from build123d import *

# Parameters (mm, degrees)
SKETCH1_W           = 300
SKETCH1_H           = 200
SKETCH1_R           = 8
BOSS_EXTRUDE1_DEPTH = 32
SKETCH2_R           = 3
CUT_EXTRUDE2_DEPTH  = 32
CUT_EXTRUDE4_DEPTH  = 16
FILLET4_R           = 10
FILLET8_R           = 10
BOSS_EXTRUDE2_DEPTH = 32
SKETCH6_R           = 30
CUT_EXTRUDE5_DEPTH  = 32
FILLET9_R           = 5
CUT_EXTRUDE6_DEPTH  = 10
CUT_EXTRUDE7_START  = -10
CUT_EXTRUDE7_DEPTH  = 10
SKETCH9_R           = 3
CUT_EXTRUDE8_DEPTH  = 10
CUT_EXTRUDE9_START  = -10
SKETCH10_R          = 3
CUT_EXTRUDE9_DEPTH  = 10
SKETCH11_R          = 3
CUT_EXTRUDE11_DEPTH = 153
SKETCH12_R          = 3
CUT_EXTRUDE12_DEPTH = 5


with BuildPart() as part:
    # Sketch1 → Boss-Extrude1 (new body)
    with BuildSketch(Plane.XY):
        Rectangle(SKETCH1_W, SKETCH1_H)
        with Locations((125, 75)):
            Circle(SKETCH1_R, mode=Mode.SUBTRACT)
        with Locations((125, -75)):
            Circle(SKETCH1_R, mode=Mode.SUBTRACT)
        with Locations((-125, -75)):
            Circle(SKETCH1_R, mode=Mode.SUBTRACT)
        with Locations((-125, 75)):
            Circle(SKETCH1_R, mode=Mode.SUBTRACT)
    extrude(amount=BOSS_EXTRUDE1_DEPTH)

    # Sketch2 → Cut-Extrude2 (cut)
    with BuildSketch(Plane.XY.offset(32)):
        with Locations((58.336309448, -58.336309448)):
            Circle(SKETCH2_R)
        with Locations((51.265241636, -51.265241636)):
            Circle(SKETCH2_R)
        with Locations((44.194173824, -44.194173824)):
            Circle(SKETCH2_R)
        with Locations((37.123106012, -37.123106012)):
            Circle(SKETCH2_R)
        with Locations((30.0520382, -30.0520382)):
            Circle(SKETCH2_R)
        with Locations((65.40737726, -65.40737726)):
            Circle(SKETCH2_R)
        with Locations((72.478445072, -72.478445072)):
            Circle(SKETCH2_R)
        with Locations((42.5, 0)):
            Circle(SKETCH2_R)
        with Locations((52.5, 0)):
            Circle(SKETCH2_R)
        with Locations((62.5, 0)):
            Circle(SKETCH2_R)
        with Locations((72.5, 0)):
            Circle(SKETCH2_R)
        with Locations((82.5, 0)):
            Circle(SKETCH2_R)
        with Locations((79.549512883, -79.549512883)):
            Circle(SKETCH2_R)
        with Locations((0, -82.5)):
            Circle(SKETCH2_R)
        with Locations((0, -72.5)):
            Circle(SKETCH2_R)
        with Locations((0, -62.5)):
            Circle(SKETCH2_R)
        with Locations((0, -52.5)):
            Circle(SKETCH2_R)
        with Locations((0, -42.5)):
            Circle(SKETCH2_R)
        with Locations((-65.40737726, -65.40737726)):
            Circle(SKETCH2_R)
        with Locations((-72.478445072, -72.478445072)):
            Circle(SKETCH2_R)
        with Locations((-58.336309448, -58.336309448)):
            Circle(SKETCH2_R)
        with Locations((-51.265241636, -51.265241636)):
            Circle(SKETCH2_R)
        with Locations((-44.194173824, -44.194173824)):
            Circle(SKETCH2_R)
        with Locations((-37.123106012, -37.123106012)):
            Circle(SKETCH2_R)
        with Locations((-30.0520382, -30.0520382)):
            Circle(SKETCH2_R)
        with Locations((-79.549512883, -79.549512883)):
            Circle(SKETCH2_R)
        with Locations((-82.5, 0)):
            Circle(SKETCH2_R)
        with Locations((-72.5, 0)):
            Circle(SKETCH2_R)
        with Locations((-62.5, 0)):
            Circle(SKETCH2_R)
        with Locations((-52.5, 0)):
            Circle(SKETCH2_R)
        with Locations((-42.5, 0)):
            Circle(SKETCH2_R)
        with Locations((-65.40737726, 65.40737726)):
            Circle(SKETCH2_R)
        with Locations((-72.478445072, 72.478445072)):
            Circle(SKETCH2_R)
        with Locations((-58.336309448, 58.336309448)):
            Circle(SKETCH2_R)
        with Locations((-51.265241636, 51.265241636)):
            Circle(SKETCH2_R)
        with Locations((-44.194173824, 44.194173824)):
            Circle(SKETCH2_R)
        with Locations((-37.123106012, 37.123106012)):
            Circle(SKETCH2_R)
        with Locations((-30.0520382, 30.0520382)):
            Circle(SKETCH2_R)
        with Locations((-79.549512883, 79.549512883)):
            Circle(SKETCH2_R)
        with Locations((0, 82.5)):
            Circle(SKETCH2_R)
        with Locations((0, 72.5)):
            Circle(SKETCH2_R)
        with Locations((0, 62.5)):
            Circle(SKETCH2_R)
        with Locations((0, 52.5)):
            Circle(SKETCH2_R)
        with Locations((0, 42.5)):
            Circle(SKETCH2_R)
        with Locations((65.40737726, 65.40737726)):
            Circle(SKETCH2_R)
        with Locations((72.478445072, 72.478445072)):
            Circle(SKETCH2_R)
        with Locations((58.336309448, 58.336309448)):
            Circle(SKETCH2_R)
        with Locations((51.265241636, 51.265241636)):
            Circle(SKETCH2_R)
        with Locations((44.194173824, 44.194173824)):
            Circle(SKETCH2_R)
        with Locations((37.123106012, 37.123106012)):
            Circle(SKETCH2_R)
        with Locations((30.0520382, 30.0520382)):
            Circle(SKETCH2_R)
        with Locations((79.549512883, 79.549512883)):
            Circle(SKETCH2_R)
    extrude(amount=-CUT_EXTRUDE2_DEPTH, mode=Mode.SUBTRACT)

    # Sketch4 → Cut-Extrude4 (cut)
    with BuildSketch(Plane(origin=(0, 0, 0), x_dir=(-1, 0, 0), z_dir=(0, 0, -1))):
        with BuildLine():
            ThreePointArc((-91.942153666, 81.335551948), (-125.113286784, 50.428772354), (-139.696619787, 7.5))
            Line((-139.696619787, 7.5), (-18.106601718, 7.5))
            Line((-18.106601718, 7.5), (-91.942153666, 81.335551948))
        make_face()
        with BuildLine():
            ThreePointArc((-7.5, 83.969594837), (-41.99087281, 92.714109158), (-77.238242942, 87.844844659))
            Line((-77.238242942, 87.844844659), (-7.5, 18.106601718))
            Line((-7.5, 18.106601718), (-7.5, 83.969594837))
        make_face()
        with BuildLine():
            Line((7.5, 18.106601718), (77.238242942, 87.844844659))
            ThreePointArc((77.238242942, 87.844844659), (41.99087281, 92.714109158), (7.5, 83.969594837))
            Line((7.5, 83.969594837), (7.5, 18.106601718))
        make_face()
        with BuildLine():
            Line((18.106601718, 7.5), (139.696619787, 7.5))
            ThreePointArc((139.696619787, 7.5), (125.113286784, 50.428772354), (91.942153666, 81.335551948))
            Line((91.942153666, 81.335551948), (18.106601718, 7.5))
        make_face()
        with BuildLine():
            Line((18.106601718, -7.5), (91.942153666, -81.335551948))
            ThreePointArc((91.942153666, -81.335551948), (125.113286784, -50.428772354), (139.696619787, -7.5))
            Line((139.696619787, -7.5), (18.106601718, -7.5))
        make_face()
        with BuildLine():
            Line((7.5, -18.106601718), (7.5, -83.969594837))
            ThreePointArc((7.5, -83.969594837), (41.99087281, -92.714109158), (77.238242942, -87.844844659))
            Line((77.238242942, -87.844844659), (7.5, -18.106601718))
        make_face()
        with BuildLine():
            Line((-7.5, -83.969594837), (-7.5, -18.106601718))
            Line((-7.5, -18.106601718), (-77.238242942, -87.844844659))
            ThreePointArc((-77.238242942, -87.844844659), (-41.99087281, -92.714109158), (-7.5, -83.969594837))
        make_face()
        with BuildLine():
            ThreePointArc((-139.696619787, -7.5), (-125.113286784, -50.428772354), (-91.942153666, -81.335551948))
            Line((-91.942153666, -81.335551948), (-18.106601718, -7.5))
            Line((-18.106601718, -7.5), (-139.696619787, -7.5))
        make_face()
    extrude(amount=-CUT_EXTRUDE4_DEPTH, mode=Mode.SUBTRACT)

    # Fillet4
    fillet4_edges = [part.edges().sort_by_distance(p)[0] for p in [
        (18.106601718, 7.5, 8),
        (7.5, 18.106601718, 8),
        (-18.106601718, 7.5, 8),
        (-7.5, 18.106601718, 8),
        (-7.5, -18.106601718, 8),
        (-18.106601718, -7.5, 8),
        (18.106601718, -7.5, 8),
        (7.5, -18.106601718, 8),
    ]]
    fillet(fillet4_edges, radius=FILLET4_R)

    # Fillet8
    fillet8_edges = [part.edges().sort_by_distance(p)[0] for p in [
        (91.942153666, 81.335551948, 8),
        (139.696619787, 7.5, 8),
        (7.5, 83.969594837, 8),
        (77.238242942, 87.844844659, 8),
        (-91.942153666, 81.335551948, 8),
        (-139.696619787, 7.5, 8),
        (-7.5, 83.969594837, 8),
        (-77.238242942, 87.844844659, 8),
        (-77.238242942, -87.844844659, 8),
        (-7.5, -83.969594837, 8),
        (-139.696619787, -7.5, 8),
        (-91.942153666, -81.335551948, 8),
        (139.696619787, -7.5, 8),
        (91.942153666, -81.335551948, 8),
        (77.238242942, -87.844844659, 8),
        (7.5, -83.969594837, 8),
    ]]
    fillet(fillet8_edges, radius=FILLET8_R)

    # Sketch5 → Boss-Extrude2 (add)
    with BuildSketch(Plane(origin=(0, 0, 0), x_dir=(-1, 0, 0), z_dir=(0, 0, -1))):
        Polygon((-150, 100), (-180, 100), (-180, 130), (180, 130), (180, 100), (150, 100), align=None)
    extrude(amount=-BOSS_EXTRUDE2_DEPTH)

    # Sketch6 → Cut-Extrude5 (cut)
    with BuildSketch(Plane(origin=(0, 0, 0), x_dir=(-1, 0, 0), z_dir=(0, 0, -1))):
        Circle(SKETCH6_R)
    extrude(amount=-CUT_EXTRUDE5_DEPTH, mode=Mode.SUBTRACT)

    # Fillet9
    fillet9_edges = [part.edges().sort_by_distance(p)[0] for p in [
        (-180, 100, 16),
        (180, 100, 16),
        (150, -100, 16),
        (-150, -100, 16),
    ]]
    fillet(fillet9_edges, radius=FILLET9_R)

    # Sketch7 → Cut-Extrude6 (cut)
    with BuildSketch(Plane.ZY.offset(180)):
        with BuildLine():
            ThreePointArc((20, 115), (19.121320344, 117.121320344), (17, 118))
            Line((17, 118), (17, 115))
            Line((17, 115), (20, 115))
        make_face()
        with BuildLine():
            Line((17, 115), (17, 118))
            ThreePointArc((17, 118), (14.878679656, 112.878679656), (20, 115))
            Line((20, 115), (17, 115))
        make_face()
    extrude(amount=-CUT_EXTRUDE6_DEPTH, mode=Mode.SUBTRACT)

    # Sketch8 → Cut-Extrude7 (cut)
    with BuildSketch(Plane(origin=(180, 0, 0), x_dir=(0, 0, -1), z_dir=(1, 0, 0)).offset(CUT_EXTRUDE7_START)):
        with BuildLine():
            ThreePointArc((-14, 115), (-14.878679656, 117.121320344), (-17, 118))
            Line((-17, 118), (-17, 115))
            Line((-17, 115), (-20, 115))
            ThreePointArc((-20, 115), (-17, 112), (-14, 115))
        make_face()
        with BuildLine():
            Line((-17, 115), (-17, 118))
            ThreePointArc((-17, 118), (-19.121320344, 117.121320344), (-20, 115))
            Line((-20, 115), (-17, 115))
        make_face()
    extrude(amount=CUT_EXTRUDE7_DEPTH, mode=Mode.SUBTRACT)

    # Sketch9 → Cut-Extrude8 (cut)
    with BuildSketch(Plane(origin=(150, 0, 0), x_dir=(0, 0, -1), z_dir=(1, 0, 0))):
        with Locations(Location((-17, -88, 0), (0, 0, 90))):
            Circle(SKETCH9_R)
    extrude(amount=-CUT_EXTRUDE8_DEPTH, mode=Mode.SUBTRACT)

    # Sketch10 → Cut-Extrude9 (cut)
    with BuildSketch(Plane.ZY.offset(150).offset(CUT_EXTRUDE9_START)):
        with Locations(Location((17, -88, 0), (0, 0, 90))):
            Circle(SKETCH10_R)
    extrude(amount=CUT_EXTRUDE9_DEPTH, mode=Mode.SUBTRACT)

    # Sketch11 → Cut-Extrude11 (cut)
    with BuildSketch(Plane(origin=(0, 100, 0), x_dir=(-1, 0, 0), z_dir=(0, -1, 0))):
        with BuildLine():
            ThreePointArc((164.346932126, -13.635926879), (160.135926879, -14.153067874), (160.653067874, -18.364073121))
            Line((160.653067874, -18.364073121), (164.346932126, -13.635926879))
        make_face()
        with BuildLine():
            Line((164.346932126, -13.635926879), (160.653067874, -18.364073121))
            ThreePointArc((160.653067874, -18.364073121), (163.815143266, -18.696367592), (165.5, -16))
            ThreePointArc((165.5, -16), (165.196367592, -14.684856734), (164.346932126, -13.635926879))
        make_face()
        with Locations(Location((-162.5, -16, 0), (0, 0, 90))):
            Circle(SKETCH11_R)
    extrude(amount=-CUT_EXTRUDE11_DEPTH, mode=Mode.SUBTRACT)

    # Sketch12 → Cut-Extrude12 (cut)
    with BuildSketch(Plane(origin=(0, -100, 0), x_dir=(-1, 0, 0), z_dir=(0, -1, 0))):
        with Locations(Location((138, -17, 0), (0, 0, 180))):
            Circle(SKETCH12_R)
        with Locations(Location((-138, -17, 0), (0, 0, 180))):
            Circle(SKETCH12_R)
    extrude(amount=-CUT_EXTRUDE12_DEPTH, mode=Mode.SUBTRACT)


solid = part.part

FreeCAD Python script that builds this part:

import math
import FreeCAD as App
import Part
import Sketcher
Q = App.Units.Quantity


def edges_at(feature, points):
    """Names of the edges that pass closest to the given points."""
    edges = feature.Shape.Edges
    near = lambda p: min(range(len(edges)), key=lambda i: edges[i].distToShape(Part.Vertex(*p))[0])
    return sorted({f"Edge{near(p) + 1}" for p in points})

doc = App.newDocument("Part")
body = doc.addObject("PartDesign::Body", "Body")

sketch1 = body.newObject("Sketcher::SketchObject", "Sketch")
sketch1.AttachmentSupport = (doc.getObject("XY_Plane"), [""])
sketch1.MapMode = "FlatFace"
sketch1.addGeometry(Part.LineSegment(App.Vector(-150, 100, 0), App.Vector(-150, -100, 0)), False)
sketch1.addGeometry(Part.LineSegment(App.Vector(-150, -100, 0), App.Vector(150, -100, 0)), False)
sketch1.addGeometry(Part.LineSegment(App.Vector(150, -100, 0), App.Vector(150, 100, 0)), False)
sketch1.addGeometry(Part.LineSegment(App.Vector(150, 100, 0), App.Vector(-150, 100, 0)), False)
sketch1.addGeometry(Part.Circle(App.Vector(-125, -75, 0), App.Vector(0, 0, 1), 8), False)
sketch1.addGeometry(Part.Circle(App.Vector(125, -75, 0), App.Vector(0, 0, 1), 8), False)
sketch1.addGeometry(Part.Circle(App.Vector(-125, 75, 0), App.Vector(0, 0, 1), 8), False)
sketch1.addGeometry(Part.Circle(App.Vector(125, 75, 0), App.Vector(0, 0, 1), 8), False)
sketch1.addConstraint(Sketcher.Constraint("Coincident", 0, 2, 1, 1))
sketch1.addConstraint(Sketcher.Constraint("Coincident", 1, 2, 2, 1))
sketch1.addConstraint(Sketcher.Constraint("Coincident", 2, 2, 3, 1))
sketch1.addConstraint(Sketcher.Constraint("Coincident", 3, 2, 0, 1))
sketch1.addConstraint(Sketcher.Constraint("Vertical", 0))
sketch1.addConstraint(Sketcher.Constraint("Horizontal", 1))
sketch1.addConstraint(Sketcher.Constraint("Vertical", 2))
sketch1.addConstraint(Sketcher.Constraint("Horizontal", 3))
sketch1.addConstraint(Sketcher.Constraint("Equal", 4, 5))
sketch1.addConstraint(Sketcher.Constraint("Equal", 5, 6))
sketch1.addConstraint(Sketcher.Constraint("Equal", 6, 7))
sketch1.addConstraint(Sketcher.Constraint("Symmetric", 5, 3, 6, 3, -1, 1))
sketch1.addConstraint(Sketcher.Constraint("Symmetric", 4, 3, 7, 3, -1, 1))
sketch1.addConstraint(Sketcher.Constraint("Symmetric", 0, 2, 2, 2, -1, 1))
sketch1.addConstraint(Sketcher.Constraint("Symmetric", 4, 3, 5, 3, -2))
sketch1.addConstraint(Sketcher.Constraint("Diameter", 4, Q("16 mm")))
sketch1.addConstraint(Sketcher.Constraint("DistanceX", 1, 1, 1, 2, Q("300 mm")))
sketch1.addConstraint(Sketcher.Constraint("DistanceY", 0, 2, 0, 1, Q("200 mm")))
sketch1.addConstraint(Sketcher.Constraint("DistanceX", 4, 3, -1, 1, Q("125 mm")))
sketch1.addConstraint(Sketcher.Constraint("DistanceY", 4, 3, -1, 1, Q("75 mm")))
pad1 = body.newObject("PartDesign::Pad", "Pad")
pad1.Profile = sketch1
pad1.Length = 32

sketch2 = body.newObject("Sketcher::SketchObject", "Sketch001")
sketch2.AttachmentSupport = (doc.getObject("XY_Plane"), [""])
sketch2.MapMode = "FlatFace"
sketch2.AttachmentOffset = App.Placement(App.Vector(0, 0, 32), App.Rotation())
sketch2.addGeometry(Part.Circle(App.Vector(58.336309, -58.336309, 0), App.Vector(0, 0, 1), 3), False)
sketch2.addGeometry(Part.Circle(App.Vector(51.265242, -51.265242, 0), App.Vector(0, 0, 1), 3), False)
sketch2.addGeometry(Part.Circle(App.Vector(44.194174, -44.194174, 0), App.Vector(0, 0, 1), 3), False)
sketch2.addGeometry(Part.Circle(App.Vector(37.123106, -37.123106, 0), App.Vector(0, 0, 1), 3), False)
sketch2.addGeometry(Part.Circle(App.Vector(30.052038, -30.052038, 0), App.Vector(0, 0, 1), 3), False)
sketch2.addGeometry(Part.Circle(App.Vector(65.407377, -65.407377, 0), App.Vector(0, 0, 1), 3), False)
sketch2.addGeometry(Part.Circle(App.Vector(72.478445, -72.478445, 0), App.Vector(0, 0, 1), 3), False)
sketch2.addGeometry(Part.Circle(App.Vector(42.5, 0, 0), App.Vector(0, 0, 1), 3), False)
sketch2.addGeometry(Part.Circle(App.Vector(52.5, 0, 0), App.Vector(0, 0, 1), 3), False)
sketch2.addGeometry(Part.Circle(App.Vector(62.5, 0, 0), App.Vector(0, 0, 1), 3), False)
sketch2.addGeometry(Part.Circle(App.Vector(72.5, 0, 0), App.Vector(0, 0, 1), 3), False)
sketch2.addGeometry(Part.Circle(App.Vector(82.5, 0, 0), App.Vector(0, 0, 1), 3), False)
sketch2.addGeometry(Part.Circle(App.Vector(79.549513, -79.549513, 0), App.Vector(0, 0, 1), 3), False)
sketch2.addGeometry(Part.Circle(App.Vector(0, -82.5, 0), App.Vector(0, 0, 1), 3), False)
sketch2.addGeometry(Part.Circle(App.Vector(0, -72.5, 0), App.Vector(0, 0, 1), 3), False)
sketch2.addGeometry(Part.Circle(App.Vector(0, -62.5, 0), App.Vector(0, 0, 1), 3), False)
sketch2.addGeometry(Part.Circle(App.Vector(0, -52.5, 0), App.Vector(0, 0, 1), 3), False)
sketch2.addGeometry(Part.Circle(App.Vector(0, -42.5, 0), App.Vector(0, 0, 1), 3), False)
sketch2.addGeometry(Part.Circle(App.Vector(-65.407377, -65.407377, 0), App.Vector(0, 0, 1), 3), False)
sketch2.addGeometry(Part.Circle(App.Vector(-72.478445, -72.478445, 0), App.Vector(0, 0, 1), 3), False)
sketch2.addGeometry(Part.Circle(App.Vector(-58.336309, -58.336309, 0), App.Vector(0, 0, 1), 3), False)
sketch2.addGeometry(Part.Circle(App.Vector(-51.265242, -51.265242, 0), App.Vector(0, 0, 1), 3), False)
sketch2.addGeometry(Part.Circle(App.Vector(-44.194174, -44.194174, 0), App.Vector(0, 0, 1), 3), False)
sketch2.addGeometry(Part.Circle(App.Vector(-37.123106, -37.123106, 0), App.Vector(0, 0, 1), 3), False)
sketch2.addGeometry(Part.Circle(App.Vector(-30.052038, -30.052038, 0), App.Vector(0, 0, 1), 3), False)
sketch2.addGeometry(Part.Circle(App.Vector(-79.549513, -79.549513, 0), App.Vector(0, 0, 1), 3), False)
sketch2.addGeometry(Part.Circle(App.Vector(-82.5, 0, 0), App.Vector(0, 0, 1), 3), False)
sketch2.addGeometry(Part.Circle(App.Vector(-72.5, 0, 0), App.Vector(0, 0, 1), 3), False)
sketch2.addGeometry(Part.Circle(App.Vector(-62.5, 0, 0), App.Vector(0, 0, 1), 3), False)
sketch2.addGeometry(Part.Circle(App.Vector(-52.5, 0, 0), App.Vector(0, 0, 1), 3), False)
sketch2.addGeometry(Part.Circle(App.Vector(-42.5, 0, 0), App.Vector(0, 0, 1), 3), False)
sketch2.addGeometry(Part.Circle(App.Vector(-65.407377, 65.407377, 0), App.Vector(0, 0, 1), 3), False)
sketch2.addGeometry(Part.Circle(App.Vector(-72.478445, 72.478445, 0), App.Vector(0, 0, 1), 3), False)
sketch2.addGeometry(Part.Circle(App.Vector(-58.336309, 58.336309, 0), App.Vector(0, 0, 1), 3), False)
sketch2.addGeometry(Part.Circle(App.Vector(-51.265242, 51.265242, 0), App.Vector(0, 0, 1), 3), False)
sketch2.addGeometry(Part.Circle(App.Vector(-44.194174, 44.194174, 0), App.Vector(0, 0, 1), 3), False)
sketch2.addGeometry(Part.Circle(App.Vector(-37.123106, 37.123106, 0), App.Vector(0, 0, 1), 3), False)
sketch2.addGeometry(Part.Circle(App.Vector(-30.052038, 30.052038, 0), App.Vector(0, 0, 1), 3), False)
sketch2.addGeometry(Part.Circle(App.Vector(-79.549513, 79.549513, 0), App.Vector(0, 0, 1), 3), False)
sketch2.addGeometry(Part.Circle(App.Vector(0, 82.5, 0), App.Vector(0, 0, 1), 3), False)
sketch2.addGeometry(Part.Circle(App.Vector(0, 72.5, 0), App.Vector(0, 0, 1), 3), False)
sketch2.addGeometry(Part.Circle(App.Vector(0, 62.5, 0), App.Vector(0, 0, 1), 3), False)
sketch2.addGeometry(Part.Circle(App.Vector(0, 52.5, 0), App.Vector(0, 0, 1), 3), False)
sketch2.addGeometry(Part.Circle(App.Vector(0, 42.5, 0), App.Vector(0, 0, 1), 3), False)
sketch2.addGeometry(Part.Circle(App.Vector(65.407377, 65.407377, 0), App.Vector(0, 0, 1), 3), False)
sketch2.addGeometry(Part.Circle(App.Vector(72.478445, 72.478445, 0), App.Vector(0, 0, 1), 3), False)
sketch2.addGeometry(Part.Circle(App.Vector(58.336309, 58.336309, 0), App.Vector(0, 0, 1), 3), False)
sketch2.addGeometry(Part.Circle(App.Vector(51.265242, 51.265242, 0), App.Vector(0, 0, 1), 3), False)
sketch2.addGeometry(Part.Circle(App.Vector(44.194174, 44.194174, 0), App.Vector(0, 0, 1), 3), False)
sketch2.addGeometry(Part.Circle(App.Vector(37.123106, 37.123106, 0), App.Vector(0, 0, 1), 3), False)
sketch2.addGeometry(Part.Circle(App.Vector(30.052038, 30.052038, 0), App.Vector(0, 0, 1), 3), False)
sketch2.addGeometry(Part.Circle(App.Vector(79.549513, 79.549513, 0), App.Vector(0, 0, 1), 3), False)
sketch2.addConstraint(Sketcher.Constraint("Equal", 0, 1))
sketch2.addConstraint(Sketcher.Constraint("Equal", 1, 2))
sketch2.addConstraint(Sketcher.Constraint("Equal", 2, 3))
sketch2.addConstraint(Sketcher.Constraint("Equal", 3, 4))
sketch2.addConstraint(Sketcher.Constraint("Equal", 4, 5))
sketch2.addConstraint(Sketcher.Constraint("Equal", 5, 6))
sketch2.addConstraint(Sketcher.Constraint("Equal", 6, 7))
sketch2.addConstraint(Sketcher.Constraint("Equal", 7, 8))
sketch2.addConstraint(Sketcher.Constraint("Equal", 8, 9))
sketch2.addConstraint(Sketcher.Constraint("Equal", 9, 10))
sketch2.addConstraint(Sketcher.Constraint("Equal", 10, 11))
sketch2.addConstraint(Sketcher.Constraint("Equal", 11, 12))
sketch2.addConstraint(Sketcher.Constraint("Equal", 12, 13))
sketch2.addConstraint(Sketcher.Constraint("Equal", 13, 14))
sketch2.addConstraint(Sketcher.Constraint("Equal", 14, 15))
sketch2.addConstraint(Sketcher.Constraint("Equal", 15, 16))
sketch2.addConstraint(Sketcher.Constraint("Equal", 16, 17))
sketch2.addConstraint(Sketcher.Constraint("Equal", 17, 18))
sketch2.addConstraint(Sketcher.Constraint("Equal", 18, 19))
sketch2.addConstraint(Sketcher.Constraint("Equal", 19, 20))
sketch2.addConstraint(Sketcher.Constraint("Equal", 20, 21))
sketch2.addConstraint(Sketcher.Constraint("Equal", 21, 22))
sketch2.addConstraint(Sketcher.Constraint("Equal", 22, 23))
sketch2.addConstraint(Sketcher.Constraint("Equal", 23, 24))
sketch2.addConstraint(Sketcher.Constraint("Equal", 24, 25))
sketch2.addConstraint(Sketcher.Constraint("Equal", 25, 26))
sketch2.addConstraint(Sketcher.Constraint("Equal", 26, 27))
sketch2.addConstraint(Sketcher.Constraint("Equal", 27, 28))
sketch2.addConstraint(Sketcher.Constraint("Equal", 28, 29))
sketch2.addConstraint(Sketcher.Constraint("Equal", 29, 30))
sketch2.addConstraint(Sketcher.Constraint("Equal", 30, 31))
sketch2.addConstraint(Sketcher.Constraint("Equal", 31, 32))
sketch2.addConstraint(Sketcher.Constraint("Equal", 32, 33))
sketch2.addConstraint(Sketcher.Constraint("Equal", 33, 34))
sketch2.addConstraint(Sketcher.Constraint("Equal", 34, 35))
sketch2.addConstraint(Sketcher.Constraint("Equal", 35, 36))
sketch2.addConstraint(Sketcher.Constraint("Equal", 36, 37))
sketch2.addConstraint(Sketcher.Constraint("Equal", 37, 38))
sketch2.addConstraint(Sketcher.Constraint("Equal", 38, 39))
sketch2.addConstraint(Sketcher.Constraint("Equal", 39, 40))
sketch2.addConstraint(Sketcher.Constraint("Equal", 40, 41))
sketch2.addConstraint(Sketcher.Constraint("Equal", 41, 42))
sketch2.addConstraint(Sketcher.Constraint("Equal", 42, 43))
sketch2.addConstraint(Sketcher.Constraint("Equal", 43, 44))
sketch2.addConstraint(Sketcher.Constraint("Equal", 44, 45))
sketch2.addConstraint(Sketcher.Constraint("Equal", 45, 46))
sketch2.addConstraint(Sketcher.Constraint("Equal", 46, 47))
sketch2.addConstraint(Sketcher.Constraint("Equal", 47, 48))
sketch2.addConstraint(Sketcher.Constraint("Equal", 48, 49))
sketch2.addConstraint(Sketcher.Constraint("Equal", 49, 50))
sketch2.addConstraint(Sketcher.Constraint("Equal", 50, 51))
sketch2.addConstraint(Sketcher.Constraint("Symmetric", 11, 3, 26, 3, -1, 1))
sketch2.addConstraint(Sketcher.Constraint("Symmetric", 10, 3, 27, 3, -1, 1))
sketch2.addConstraint(Sketcher.Constraint("Symmetric", 9, 3, 28, 3, -1, 1))
sketch2.addConstraint(Sketcher.Constraint("Symmetric", 8, 3, 29, 3, -1, 1))
sketch2.addConstraint(Sketcher.Constraint("Symmetric", 7, 3, 30, 3, -1, 1))
sketch2.addConstraint(Sketcher.Constraint("Symmetric", 5, 3, 31, 3, -1, 1))
sketch2.addConstraint(Sketcher.Constraint("Symmetric", 6, 3, 32, 3, -1, 1))
sketch2.addConstraint(Sketcher.Constraint("Symmetric", 0, 3, 33, 3, -1, 1))
sketch2.addConstraint(Sketcher.Constraint("Symmetric", 1, 3, 34, 3, -1, 1))
sketch2.addConstraint(Sketcher.Constraint("Symmetric", 2, 3, 35, 3, -1, 1))
sketch2.addConstraint(Sketcher.Constraint("Symmetric", 3, 3, 36, 3, -1, 1))
sketch2.addConstraint(Sketcher.Constraint("Symmetric", 4, 3, 37, 3, -1, 1))
sketch2.addConstraint(Sketcher.Constraint("Symmetric", 12, 3, 38, 3, -1, 1))
sketch2.addConstraint(Sketcher.Constraint("Symmetric", 13, 3, 39, 3, -1, 1))
sketch2.addConstraint(Sketcher.Constraint("Symmetric", 14, 3, 40, 3, -1, 1))
sketch2.addConstraint(Sketcher.Constraint("Symmetric", 15, 3, 41, 3, -1, 1))
sketch2.addConstraint(Sketcher.Constraint("Symmetric", 16, 3, 42, 3, -1, 1))
sketch2.addConstraint(Sketcher.Constraint("Symmetric", 17, 3, 43, 3, -1, 1))
sketch2.addConstraint(Sketcher.Constraint("Symmetric", 18, 3, 44, 3, -1, 1))
sketch2.addConstraint(Sketcher.Constraint("Symmetric", 19, 3, 45, 3, -1, 1))
sketch2.addConstraint(Sketcher.Constraint("Symmetric", 20, 3, 46, 3, -1, 1))
sketch2.addConstraint(Sketcher.Constraint("Symmetric", 21, 3, 47, 3, -1, 1))
sketch2.addConstraint(Sketcher.Constraint("Symmetric", 22, 3, 48, 3, -1, 1))
sketch2.addConstraint(Sketcher.Constraint("Symmetric", 23, 3, 49, 3, -1, 1))
sketch2.addConstraint(Sketcher.Constraint("Symmetric", 24, 3, 50, 3, -1, 1))
sketch2.addConstraint(Sketcher.Constraint("Symmetric", 25, 3, 51, 3, -1, 1))
sketch2.addConstraint(Sketcher.Constraint("Symmetric", 5, 3, 18, 3, -2))
sketch2.addConstraint(Sketcher.Constraint("Symmetric", 6, 3, 19, 3, -2))
sketch2.addConstraint(Sketcher.Constraint("Symmetric", 0, 3, 20, 3, -2))
sketch2.addConstraint(Sketcher.Constraint("Symmetric", 1, 3, 21, 3, -2))
sketch2.addConstraint(Sketcher.Constraint("Symmetric", 2, 3, 22, 3, -2))
sketch2.addConstraint(Sketcher.Constraint("Symmetric", 3, 3, 23, 3, -2))
sketch2.addConstraint(Sketcher.Constraint("Symmetric", 4, 3, 24, 3, -2))
sketch2.addConstraint(Sketcher.Constraint("Symmetric", 12, 3, 25, 3, -2))
sketch2.addConstraint(Sketcher.Constraint("PointOnObject", 7, 3, -1))
sketch2.addConstraint(Sketcher.Constraint("PointOnObject", 8, 3, -1))
sketch2.addConstraint(Sketcher.Constraint("PointOnObject", 9, 3, -1))
sketch2.addConstraint(Sketcher.Constraint("PointOnObject", 10, 3, -1))
sketch2.addConstraint(Sketcher.Constraint("PointOnObject", 11, 3, -1))
sketch2.addConstraint(Sketcher.Constraint("PointOnObject", 13, 3, -2))
sketch2.addConstraint(Sketcher.Constraint("PointOnObject", 14, 3, -2))
sketch2.addConstraint(Sketcher.Constraint("PointOnObject", 15, 3, -2))
sketch2.addConstraint(Sketcher.Constraint("PointOnObject", 16, 3, -2))
sketch2.addConstraint(Sketcher.Constraint("PointOnObject", 17, 3, -2))
sketch2.addConstraint(Sketcher.Constraint("Diameter", 0, Q("6 mm")))
sketch2.addConstraint(Sketcher.Constraint("DistanceX", 7, 3, 8, 3, Q("10 mm")))
sketch2.addConstraint(Sketcher.Constraint("DistanceX", 8, 3, 9, 3, Q("10 mm")))
sketch2.addConstraint(Sketcher.Constraint("DistanceX", 9, 3, 10, 3, Q("10 mm")))
sketch2.addConstraint(Sketcher.Constraint("DistanceX", 10, 3, 11, 3, Q("10 mm")))
sketch2.addConstraint(Sketcher.Constraint("DistanceY", 13, 3, 14, 3, Q("10 mm")))
sketch2.addConstraint(Sketcher.Constraint("DistanceY", 14, 3, 15, 3, Q("10 mm")))
sketch2.addConstraint(Sketcher.Constraint("DistanceY", 15, 3, 16, 3, Q("10 mm")))
sketch2.addConstraint(Sketcher.Constraint("DistanceY", 16, 3, 17, 3, Q("10 mm")))
sketch2.addConstraint(Sketcher.Constraint("DistanceX", -1, 1, 7, 3, Q("42.5 mm")))
sketch2.addConstraint(Sketcher.Constraint("DistanceY", 13, 3, -1, 1, Q("82.5 mm")))
sketch2.addConstraint(Sketcher.Constraint("DistanceX", -1, 1, 0, 3, Q("58.336309 mm")))
sketch2.addConstraint(Sketcher.Constraint("DistanceY", 0, 3, -1, 1, Q("58.336309 mm")))
sketch2.addConstraint(Sketcher.Constraint("DistanceX", -1, 1, 1, 3, Q("51.265242 mm")))
sketch2.addConstraint(Sketcher.Constraint("DistanceY", 1, 3, -1, 1, Q("51.265242 mm")))
sketch2.addConstraint(Sketcher.Constraint("DistanceX", -1, 1, 4, 3, Q("30.052038 mm")))
sketch2.addConstraint(Sketcher.Constraint("DistanceY", 4, 3, -1, 1, Q("30.052038 mm")))
sketch2.addConstraint(Sketcher.Constraint("DistanceX", 3, 3, 5, 3, Q("28.284271 mm")))
sketch2.addConstraint(Sketcher.Constraint("DistanceY", 5, 3, 3, 3, Q("28.284271 mm")))
sketch2.addConstraint(Sketcher.Constraint("DistanceX", 4, 3, 5, 3, Q("35.355339 mm")))
sketch2.addConstraint(Sketcher.Constraint("DistanceY", 5, 3, 4, 3, Q("35.355339 mm")))
sketch2.addConstraint(Sketcher.Constraint("DistanceX", 2, 3, 6, 3, Q("28.284271 mm")))
sketch2.addConstraint(Sketcher.Constraint("DistanceY", 6, 3, 2, 3, Q("28.284271 mm")))
sketch2.addConstraint(Sketcher.Constraint("DistanceX", 3, 3, 6, 3, Q("35.355339 mm")))
sketch2.addConstraint(Sketcher.Constraint("DistanceY", 6, 3, 3, 3, Q("35.355339 mm")))
sketch2.addConstraint(Sketcher.Constraint("DistanceX", 1, 3, 12, 3, Q("28.284271 mm")))
sketch2.addConstraint(Sketcher.Constraint("DistanceY", 12, 3, 1, 3, Q("28.284271 mm")))
pocket1 = body.newObject("PartDesign::Pocket", "Pocket")
pocket1.Profile = sketch2
pocket1.Length = 32

sketch3 = body.newObject("Sketcher::SketchObject", "Sketch002")
sketch3.AttachmentSupport = (doc.getObject("XY_Plane"), [""])
sketch3.MapMode = "FlatFace"
sketch3.addGeometry(Part.ArcOfCircle(Part.Circle(App.Vector(47.142857, 0, 0), App.Vector(0, 0, 1), 92.857143), math.radians(4.632783), math.radians(61.154203)), False)
sketch3.addGeometry(Part.LineSegment(App.Vector(139.69662, 7.5, 0), App.Vector(18.106602, 7.5, 0)), False)
sketch3.addGeometry(Part.LineSegment(App.Vector(18.106602, 7.5, 0), App.Vector(91.942154, 81.335552, 0)), False)
sketch3.addGeometry(Part.ArcOfCircle(Part.Circle(App.Vector(47.142857, 0, 0), App.Vector(0, 0, 1), 92.857143), math.radians(71.088691), math.radians(115.272449)), False)
sketch3.addGeometry(Part.LineSegment(App.Vector(77.238243, 87.844845, 0), App.Vector(7.5, 18.106602, 0)), False)
sketch3.addGeometry(Part.LineSegment(App.Vector(7.5, 18.106602, 0), App.Vector(7.5, 83.969595, 0)), False)
sketch3.addGeometry(Part.LineSegment(App.Vector(-7.5, 18.106602, 0), App.Vector(-77.238243, 87.844845, 0)), False)
sketch3.addGeometry(Part.ArcOfCircle(Part.Circle(App.Vector(-47.142857, 0, 0), App.Vector(0, 0, 1), 92.857143), math.radians(64.727551), math.radians(108.911309)), False)
sketch3.addGeometry(Part.LineSegment(App.Vector(-7.5, 83.969595, 0), App.Vector(-7.5, 18.106602, 0)), False)
sketch3.addGeometry(Part.LineSegment(App.Vector(-18.106602, 7.5, 0), App.Vector(-139.69662, 7.5, 0)), False)
sketch3.addGeometry(Part.ArcOfCircle(Part.Circle(App.Vector(-47.142857, 0, 0), App.Vector(0, 0, 1), 92.857143), math.radians(118.845797), math.radians(175.367217)), False)
sketch3.addGeometry(Part.LineSegment(App.Vector(-91.942154, 81.335552, 0), App.Vector(-18.106602, 7.5, 0)), False)
sketch3.addGeometry(Part.LineSegment(App.Vector(-18.106602, -7.5, 0), App.Vector(-91.942154, -81.335552, 0)), False)
sketch3.addGeometry(Part.ArcOfCircle(Part.Circle(App.Vector(-47.142857, 0, 0), App.Vector(0, 0, 1), 92.857143), math.radians(-175.367217), math.radians(-118.845797)), False)
sketch3.addGeometry(Part.LineSegment(App.Vector(-139.69662, -7.5, 0), App.Vector(-18.106602, -7.5, 0)), False)
sketch3.addGeometry(Part.LineSegment(App.Vector(-7.5, -18.106602, 0), App.Vector(-7.5, -83.969595, 0)), False)
sketch3.addGeometry(Part.ArcOfCircle(Part.Circle(App.Vector(-47.142857, 0, 0), App.Vector(0, 0, 1), 92.857143), math.radians(-108.911309), math.radians(-64.727551)), False)
sketch3.addGeometry(Part.LineSegment(App.Vector(-77.238243, -87.844845, 0), App.Vector(-7.5, -18.106602, 0)), False)
sketch3.addGeometry(Part.LineSegment(App.Vector(7.5, -83.969595, 0), App.Vector(7.5, -18.106602, 0)), False)
sketch3.addGeometry(Part.LineSegment(App.Vector(7.5, -18.106602, 0), App.Vector(77.238243, -87.844845, 0)), False)
sketch3.addGeometry(Part.ArcOfCircle(Part.Circle(App.Vector(47.142857, 0, 0), App.Vector(0, 0, 1), 92.857143), math.radians(-115.272449), math.radians(-71.088691)), False)
sketch3.addGeometry(Part.ArcOfCircle(Part.Circle(App.Vector(47.142857, 0, 0), App.Vector(0, 0, 1), 92.857143), math.radians(-61.154203), math.radians(-4.632783)), False)
sketch3.addGeometry(Part.LineSegment(App.Vector(91.942154, -81.335552, 0), App.Vector(18.106602, -7.5, 0)), False)
sketch3.addGeometry(Part.LineSegment(App.Vector(18.106602, -7.5, 0), App.Vector(139.69662, -7.5, 0)), False)
sketch3.addConstraint(Sketcher.Constraint("Coincident", 0, 1, 1, 1))
sketch3.addConstraint(Sketcher.Constraint("Coincident", 1, 2, 2, 1))
sketch3.addConstraint(Sketcher.Constraint("Coincident", 2, 2, 0, 2))
sketch3.addConstraint(Sketcher.Constraint("Coincident", 3, 1, 4, 1))
sketch3.addConstraint(Sketcher.Constraint("Coincident", 4, 2, 5, 1))
sketch3.addConstraint(Sketcher.Constraint("Coincident", 5, 2, 3, 2))
sketch3.addConstraint(Sketcher.Constraint("Coincident", 6, 2, 7, 2))
sketch3.addConstraint(Sketcher.Constraint("Coincident", 7, 1, 8, 1))
sketch3.addConstraint(Sketcher.Constraint("Coincident", 8, 2, 6, 1))
sketch3.addConstraint(Sketcher.Constraint("Coincident", 9, 2, 10, 2))
sketch3.addConstraint(Sketcher.Constraint("Coincident", 10, 1, 11, 1))
sketch3.addConstraint(Sketcher.Constraint("Coincident", 11, 2, 9, 1))
sketch3.addConstraint(Sketcher.Constraint("Coincident", 12, 2, 13, 2))
sketch3.addConstraint(Sketcher.Constraint("Coincident", 13, 1, 14, 1))
sketch3.addConstraint(Sketcher.Constraint("Coincident", 14, 2, 12, 1))
sketch3.addConstraint(Sketcher.Constraint("Coincident", 15, 2, 16, 2))
sketch3.addConstraint(Sketcher.Constraint("Coincident", 16, 1, 17, 1))
sketch3.addConstraint(Sketcher.Constraint("Coincident", 17, 2, 15, 1))
sketch3.addConstraint(Sketcher.Constraint("Coincident", 18, 2, 19, 1))
sketch3.addConstraint(Sketcher.Constraint("Coincident", 19, 2, 20, 2))
sketch3.addConstraint(Sketcher.Constraint("Coincident", 20, 1, 18, 1))
sketch3.addConstraint(Sketcher.Constraint("Coincident", 21, 1, 22, 1))
sketch3.addConstraint(Sketcher.Constraint("Coincident", 22, 2, 23, 1))
sketch3.addConstraint(Sketcher.Constraint("Coincident", 23, 2, 21, 2))
sketch3.addConstraint(Sketcher.Constraint("Horizontal", 1))
sketch3.addConstraint(Sketcher.Constraint("Vertical", 5))
sketch3.addConstraint(Sketcher.Constraint("Vertical", 8))
sketch3.addConstraint(Sketcher.Constraint("Horizontal", 9))
sketch3.addConstraint(Sketcher.Constraint("Horizontal", 14))
sketch3.addConstraint(Sketcher.Constraint("Vertical", 15))
sketch3.addConstraint(Sketcher.Constraint("Vertical", 18))
sketch3.addConstraint(Sketcher.Constraint("Horizontal", 23))
sketch3.addConstraint(Sketcher.Constraint("Coincident", 3, 3, 0, 3))
sketch3.addConstraint(Sketcher.Constraint("Coincident", 10, 3, 7, 3))
sketch3.addConstraint(Sketcher.Constraint("Coincident", 13, 3, 7, 3))
sketch3.addConstraint(Sketcher.Constraint("Coincident", 16, 3, 7, 3))
sketch3.addConstraint(Sketcher.Constraint("Coincident", 20, 3, 0, 3))
sketch3.addConstraint(Sketcher.Constraint("Coincident", 21, 3, 0, 3))
sketch3.addConstraint(Sketcher.Constraint("Equal", 0, 3))
sketch3.addConstraint(Sketcher.Constraint("Equal", 3, 7))
sketch3.addConstraint(Sketcher.Constraint("Equal", 7, 10))
sketch3.addConstraint(Sketcher.Constraint("Equal", 10, 13))
sketch3.addConstraint(Sketcher.Constraint("Equal", 13, 16))
sketch3.addConstraint(Sketcher.Constraint("Equal", 16, 20))
sketch3.addConstraint(Sketcher.Constraint("Equal", 20, 21))
sketch3.addConstraint(Sketcher.Constraint("Symmetric", 0, 3, 7, 3, -1, 1))
sketch3.addConstraint(Sketcher.Constraint("Symmetric", 1, 2, 14, 2, -1, 1))
sketch3.addConstraint(Sketcher.Constraint("Symmetric", 4, 2, 17, 2, -1, 1))
sketch3.addConstraint(Sketcher.Constraint("Symmetric", 8, 2, 18, 2, -1, 1))
sketch3.addConstraint(Sketcher.Constraint("Symmetric", 11, 2, 22, 2, -1, 1))
sketch3.addConstraint(Sketcher.Constraint("Symmetric", 3, 1, 6, 2, -2))
sketch3.addConstraint(Sketcher.Constraint("Symmetric", 4, 2, 8, 2, -2))
sketch3.addConstraint(Sketcher.Constraint("Symmetric", 1, 2, 11, 2, -2))
sketch3.addConstraint(Sketcher.Constraint("Parallel", 2, 4))
sketch3.addConstraint(Sketcher.Constraint("Perpendicular", 4, 6))
sketch3.addConstraint(Sketcher.Constraint("Parallel", 6, 11))
sketch3.addConstraint(Sketcher.Constraint("Perpendicular", 11, 12))
sketch3.addConstraint(Sketcher.Constraint("Parallel", 12, 17))
sketch3.addConstraint(Sketcher.Constraint("Perpendicular", 17, 19))
sketch3.addConstraint(Sketcher.Constraint("Parallel", 19, 22))
sketch3.addConstraint(Sketcher.Constraint("DistanceX", 7, 1, 5, 2, Q("15 mm")))
sketch3.addConstraint(Sketcher.Constraint("DistanceY", 13, 1, 9, 2, Q("15 mm")))
sketch3.addConstraint(Sketcher.Constraint("Radius", 0, Q("92.857143 mm")))
sketch3.addConstraint(Sketcher.Constraint("DistanceX", 1, 2, 1, 1, Q("121.590018 mm")))
sketch3.addConstraint(Sketcher.Constraint("DistanceX", -1, 1, 1, 2, Q("18.106602 mm")))
sketch3.addConstraint(Sketcher.Constraint("DistanceY", -1, 1, 4, 2, Q("18.106602 mm")))
pocket2 = body.newObject("PartDesign::Pocket", "Pocket001")
pocket2.Profile = sketch3
pocket2.Length = 16
pocket2.Reversed = True
doc.recompute()

fillet = body.newObject("PartDesign::Fillet", "Fillet")
fillet.Base = (pocket2, edges_at(pocket2, [
    (18.107, 7.5, 8),
    (7.5, 18.107, 8),
    (-18.107, 7.5, 8),
    (-7.5, 18.107, 8),
    (-7.5, -18.107, 8),
    (-18.107, -7.5, 8),
    (18.107, -7.5, 8),
    (7.5, -18.107, 8),
]))
fillet.Radius = 10
doc.recompute()

fillet2 = body.newObject("PartDesign::Fillet", "Fillet001")
fillet2.Base = (fillet, edges_at(fillet, [
    (91.942, 81.336, 8),
    (139.697, 7.5, 8),
    (7.5, 83.97, 8),
    (77.238, 87.845, 8),
    (-91.942, 81.336, 8),
    (-139.697, 7.5, 8),
    (-7.5, 83.97, 8),
    (-77.238, 87.845, 8),
    (-77.238, -87.845, 8),
    (-7.5, -83.97, 8),
    (-139.697, -7.5, 8),
    (-91.942, -81.336, 8),
    (139.697, -7.5, 8),
    (91.942, -81.336, 8),
    (77.238, -87.845, 8),
    (7.5, -83.97, 8),
]))
fillet2.Radius = 10

sketch4 = body.newObject("Sketcher::SketchObject", "Sketch003")
sketch4.AttachmentSupport = (doc.getObject("XY_Plane"), [""])
sketch4.MapMode = "FlatFace"
sketch4.addGeometry(Part.LineSegment(App.Vector(180, 100, 0), App.Vector(-180, 100, 0)), False)
sketch4.addGeometry(Part.LineSegment(App.Vector(-180, 100, 0), App.Vector(-180, 130, 0)), False)
sketch4.addGeometry(Part.LineSegment(App.Vector(-180, 130, 0), App.Vector(180, 130, 0)), False)
sketch4.addGeometry(Part.LineSegment(App.Vector(180, 130, 0), App.Vector(180, 100, 0)), False)
sketch4.addConstraint(Sketcher.Constraint("Coincident", 0, 2, 1, 1))
sketch4.addConstraint(Sketcher.Constraint("Coincident", 1, 2, 2, 1))
sketch4.addConstraint(Sketcher.Constraint("Coincident", 2, 2, 3, 1))
sketch4.addConstraint(Sketcher.Constraint("Coincident", 3, 2, 0, 1))
sketch4.addConstraint(Sketcher.Constraint("Horizontal", 0))
sketch4.addConstraint(Sketcher.Constraint("Vertical", 1))
sketch4.addConstraint(Sketcher.Constraint("Horizontal", 2))
sketch4.addConstraint(Sketcher.Constraint("Vertical", 3))
sketch4.addConstraint(Sketcher.Constraint("DistanceX", 0, 2, 0, 1, Q("360 mm")))
sketch4.addConstraint(Sketcher.Constraint("DistanceY", 1, 1, 1, 2, Q("30 mm")))
sketch4.addConstraint(Sketcher.Constraint("DistanceX", 0, 2, -1, 1, Q("180 mm")))
sketch4.addConstraint(Sketcher.Constraint("DistanceY", -1, 1, 0, 2, Q("100 mm")))
pad2 = body.newObject("PartDesign::Pad", "Pad001")
pad2.Profile = sketch4
pad2.Length = 32

sketch5 = body.newObject("Sketcher::SketchObject", "Sketch004")
sketch5.AttachmentSupport = (doc.getObject("XY_Plane"), [""])
sketch5.MapMode = "FlatFace"
sketch5.addGeometry(Part.Circle(App.Vector(0, 0, 0), App.Vector(0, 0, 1), 30), False)
sketch5.addConstraint(Sketcher.Constraint("Coincident", 0, 3, -1, 1))
sketch5.addConstraint(Sketcher.Constraint("Diameter", 0, Q("60 mm")))
pocket3 = body.newObject("PartDesign::Pocket", "Pocket002")
pocket3.Profile = sketch5
pocket3.Length = 32
pocket3.Reversed = True
doc.recompute()

fillet3 = body.newObject("PartDesign::Fillet", "Fillet002")
fillet3.Base = (pocket3, edges_at(pocket3, [
    (-180, 100, 16),
    (180, 100, 16),
    (150, -100, 16),
    (-150, -100, 16),
]))
fillet3.Radius = 5

sketch6 = body.newObject("Sketcher::SketchObject", "Sketch005")
sketch6.AttachmentSupport = (doc.getObject("YZ_Plane"), [""])
sketch6.MapMode = "FlatFace"
sketch6.AttachmentOffset = App.Placement(App.Vector(0, 0, -180), App.Rotation())
sketch6.addGeometry(Part.ArcOfCircle(Part.Circle(App.Vector(115, 17, 0), App.Vector(0, 0, 1), 3), math.radians(0), math.radians(90)), False)
sketch6.addGeometry(Part.ArcOfCircle(Part.Circle(App.Vector(115, 17, 0), App.Vector(0, 0, 1), 3), math.radians(90), math.radians(360)), False)
sketch6.addConstraint(Sketcher.Constraint("Tangent", 0, 1, 1, 2))
sketch6.addConstraint(Sketcher.Constraint("Coincident", 1, 1, 0, 2))
sketch6.addConstraint(Sketcher.Constraint("Horizontal", 1, 3, 0, 1))
sketch6.addConstraint(Sketcher.Constraint("Vertical", 0, 3, 1, 1))
sketch6.addConstraint(Sketcher.Constraint("Radius", 0, Q("3 mm")))
sketch6.addConstraint(Sketcher.Constraint("DistanceX", -1, 1, 0, 3, Q("115 mm")))
sketch6.addConstraint(Sketcher.Constraint("DistanceY", -1, 1, 0, 3, Q("17 mm")))
pocket4 = body.newObject("PartDesign::Pocket", "Pocket003")
pocket4.Profile = sketch6
pocket4.Length = 10
pocket4.Reversed = True

sketch7 = body.newObject("Sketcher::SketchObject", "Sketch006")
sketch7.AttachmentSupport = (doc.getObject("YZ_Plane"), [""])
sketch7.MapMode = "FlatFace"
sketch7.AttachmentOffset = App.Placement(App.Vector(0, 0, 170), App.Rotation())
sketch7.addGeometry(Part.ArcOfCircle(Part.Circle(App.Vector(115, 17, 0), App.Vector(0, 0, 1), 3), math.radians(-90), math.radians(0)), False)
sketch7.addGeometry(Part.ArcOfCircle(Part.Circle(App.Vector(115, 17, 0), App.Vector(0, 0, 1), 3), math.radians(0), math.radians(90)), False)
sketch7.addGeometry(Part.ArcOfCircle(Part.Circle(App.Vector(115, 17, 0), App.Vector(0, 0, 1), 3), math.radians(90), math.radians(270)), False)
sketch7.addConstraint(Sketcher.Constraint("Tangent", 0, 2, 1, 1))
sketch7.addConstraint(Sketcher.Constraint("Tangent", 1, 2, 2, 1))
sketch7.addConstraint(Sketcher.Constraint("Tangent", 2, 2, 0, 1))
sketch7.addConstraint(Sketcher.Constraint("Horizontal", 2, 3, 0, 2))
sketch7.addConstraint(Sketcher.Constraint("Vertical", 2, 3, 1, 2))
sketch7.addConstraint(Sketcher.Constraint("Vertical", 1, 2, 2, 2))
sketch7.addConstraint(Sketcher.Constraint("Radius", 0, Q("3 mm")))
sketch7.addConstraint(Sketcher.Constraint("DistanceX", -1, 1, 0, 3, Q("115 mm")))
sketch7.addConstraint(Sketcher.Constraint("DistanceY", -1, 1, 0, 3, Q("17 mm")))
pocket5 = body.newObject("PartDesign::Pocket", "Pocket004")
pocket5.Profile = sketch7
pocket5.Length = 10
pocket5.Reversed = True

sketch8 = body.newObject("Sketcher::SketchObject", "Sketch007")
sketch8.AttachmentSupport = (doc.getObject("YZ_Plane"), [""])
sketch8.MapMode = "FlatFace"
sketch8.AttachmentOffset = App.Placement(App.Vector(0, 0, 150), App.Rotation())
sketch8.addGeometry(Part.Circle(App.Vector(-88, 17, 0), App.Vector(0, 0, 1), 3), False)
sketch8.addConstraint(Sketcher.Constraint("Diameter", 0, Q("6 mm")))
sketch8.addConstraint(Sketcher.Constraint("DistanceX", 0, 3, -1, 1, Q("88 mm")))
sketch8.addConstraint(Sketcher.Constraint("DistanceY", -1, 1, 0, 3, Q("17 mm")))
pocket6 = body.newObject("PartDesign::Pocket", "Pocket005")
pocket6.Profile = sketch8
pocket6.Length = 10

sketch9 = body.newObject("Sketcher::SketchObject", "Sketch008")
sketch9.AttachmentSupport = (doc.getObject("YZ_Plane"), [""])
sketch9.MapMode = "FlatFace"
sketch9.AttachmentOffset = App.Placement(App.Vector(0, 0, -140), App.Rotation())
sketch9.addGeometry(Part.Circle(App.Vector(-88, 17, 0), App.Vector(0, 0, 1), 3), False)
sketch9.addConstraint(Sketcher.Constraint("Diameter", 0, Q("6 mm")))
sketch9.addConstraint(Sketcher.Constraint("DistanceX", 0, 3, -1, 1, Q("88 mm")))
sketch9.addConstraint(Sketcher.Constraint("DistanceY", -1, 1, 0, 3, Q("17 mm")))
pocket7 = body.newObject("PartDesign::Pocket", "Pocket006")
pocket7.Profile = sketch9
pocket7.Length = 10

sketch10 = body.newObject("Sketcher::SketchObject", "Sketch009")
sketch10.AttachmentSupport = (doc.getObject("XZ_Plane"), [""])
sketch10.MapMode = "FlatFace"
sketch10.AttachmentOffset = App.Placement(App.Vector(0, 0, -100), App.Rotation())
sketch10.addGeometry(Part.ArcOfCircle(Part.Circle(App.Vector(-162.5, 16, 0), App.Vector(0, 0, 1), 3), math.radians(-127.998732), math.radians(52.001268)), False)
sketch10.addGeometry(Part.ArcOfCircle(Part.Circle(App.Vector(-162.5, 16, 0), App.Vector(0, 0, 1), 3), math.radians(52.001268), math.radians(180)), False)
sketch10.addGeometry(Part.ArcOfCircle(Part.Circle(App.Vector(-162.5, 16, 0), App.Vector(0, 0, 1), 3), math.radians(180), math.radians(232.001268)), False)
sketch10.addGeometry(Part.Circle(App.Vector(162.5, 16, 0), App.Vector(0, 0, 1), 3), False)
sketch10.addConstraint(Sketcher.Constraint("Tangent", 0, 2, 1, 1))
sketch10.addConstraint(Sketcher.Constraint("Tangent", 1, 2, 2, 1))
sketch10.addConstraint(Sketcher.Constraint("Tangent", 2, 2, 0, 1))
sketch10.addConstraint(Sketcher.Constraint("Equal", 2, 3))
sketch10.addConstraint(Sketcher.Constraint("Symmetric", 0, 3, 3, 3, -2))
sketch10.addConstraint(Sketcher.Constraint("Horizontal", 3, 3, 1, 2))
sketch10.addConstraint(Sketcher.Constraint("Diameter", 3, Q("6 mm")))
sketch10.addConstraint(Sketcher.Constraint("DistanceY", -1, 1, 0, 3, Q("16 mm")))
sketch10.addConstraint(Sketcher.Constraint("DistanceX", 0, 3, 3, 3, Q("325 mm")))
sketch10.addConstraint(Sketcher.Constraint("DistanceX", 0, 2, -1, 1, Q("160.653068 mm")))
sketch10.addConstraint(Sketcher.Constraint("DistanceX", 2, 2, -1, 1, Q("164.346932 mm")))
pocket8 = body.newObject("PartDesign::Pocket", "Pocket007")
pocket8.Profile = sketch10
pocket8.Length = 153

sketch11 = body.newObject("Sketcher::SketchObject", "Sketch010")
sketch11.AttachmentSupport = (doc.getObject("XZ_Plane"), [""])
sketch11.MapMode = "FlatFace"
sketch11.AttachmentOffset = App.Placement(App.Vector(0, 0, 100), App.Rotation())
sketch11.addGeometry(Part.Circle(App.Vector(-138, 17, 0), App.Vector(0, 0, 1), 3), False)
sketch11.addGeometry(Part.Circle(App.Vector(138, 17, 0), App.Vector(0, 0, 1), 3), False)
sketch11.addConstraint(Sketcher.Constraint("Equal", 0, 1))
sketch11.addConstraint(Sketcher.Constraint("Symmetric", 0, 3, 1, 3, -2))
sketch11.addConstraint(Sketcher.Constraint("Diameter", 0, Q("6 mm")))
sketch11.addConstraint(Sketcher.Constraint("DistanceX", 0, 3, -1, 1, Q("138 mm")))
sketch11.addConstraint(Sketcher.Constraint("DistanceY", -1, 1, 0, 3, Q("17 mm")))
pocket9 = body.newObject("PartDesign::Pocket", "Pocket008")
pocket9.Profile = sketch11
pocket9.Length = 5

doc.recompute()
